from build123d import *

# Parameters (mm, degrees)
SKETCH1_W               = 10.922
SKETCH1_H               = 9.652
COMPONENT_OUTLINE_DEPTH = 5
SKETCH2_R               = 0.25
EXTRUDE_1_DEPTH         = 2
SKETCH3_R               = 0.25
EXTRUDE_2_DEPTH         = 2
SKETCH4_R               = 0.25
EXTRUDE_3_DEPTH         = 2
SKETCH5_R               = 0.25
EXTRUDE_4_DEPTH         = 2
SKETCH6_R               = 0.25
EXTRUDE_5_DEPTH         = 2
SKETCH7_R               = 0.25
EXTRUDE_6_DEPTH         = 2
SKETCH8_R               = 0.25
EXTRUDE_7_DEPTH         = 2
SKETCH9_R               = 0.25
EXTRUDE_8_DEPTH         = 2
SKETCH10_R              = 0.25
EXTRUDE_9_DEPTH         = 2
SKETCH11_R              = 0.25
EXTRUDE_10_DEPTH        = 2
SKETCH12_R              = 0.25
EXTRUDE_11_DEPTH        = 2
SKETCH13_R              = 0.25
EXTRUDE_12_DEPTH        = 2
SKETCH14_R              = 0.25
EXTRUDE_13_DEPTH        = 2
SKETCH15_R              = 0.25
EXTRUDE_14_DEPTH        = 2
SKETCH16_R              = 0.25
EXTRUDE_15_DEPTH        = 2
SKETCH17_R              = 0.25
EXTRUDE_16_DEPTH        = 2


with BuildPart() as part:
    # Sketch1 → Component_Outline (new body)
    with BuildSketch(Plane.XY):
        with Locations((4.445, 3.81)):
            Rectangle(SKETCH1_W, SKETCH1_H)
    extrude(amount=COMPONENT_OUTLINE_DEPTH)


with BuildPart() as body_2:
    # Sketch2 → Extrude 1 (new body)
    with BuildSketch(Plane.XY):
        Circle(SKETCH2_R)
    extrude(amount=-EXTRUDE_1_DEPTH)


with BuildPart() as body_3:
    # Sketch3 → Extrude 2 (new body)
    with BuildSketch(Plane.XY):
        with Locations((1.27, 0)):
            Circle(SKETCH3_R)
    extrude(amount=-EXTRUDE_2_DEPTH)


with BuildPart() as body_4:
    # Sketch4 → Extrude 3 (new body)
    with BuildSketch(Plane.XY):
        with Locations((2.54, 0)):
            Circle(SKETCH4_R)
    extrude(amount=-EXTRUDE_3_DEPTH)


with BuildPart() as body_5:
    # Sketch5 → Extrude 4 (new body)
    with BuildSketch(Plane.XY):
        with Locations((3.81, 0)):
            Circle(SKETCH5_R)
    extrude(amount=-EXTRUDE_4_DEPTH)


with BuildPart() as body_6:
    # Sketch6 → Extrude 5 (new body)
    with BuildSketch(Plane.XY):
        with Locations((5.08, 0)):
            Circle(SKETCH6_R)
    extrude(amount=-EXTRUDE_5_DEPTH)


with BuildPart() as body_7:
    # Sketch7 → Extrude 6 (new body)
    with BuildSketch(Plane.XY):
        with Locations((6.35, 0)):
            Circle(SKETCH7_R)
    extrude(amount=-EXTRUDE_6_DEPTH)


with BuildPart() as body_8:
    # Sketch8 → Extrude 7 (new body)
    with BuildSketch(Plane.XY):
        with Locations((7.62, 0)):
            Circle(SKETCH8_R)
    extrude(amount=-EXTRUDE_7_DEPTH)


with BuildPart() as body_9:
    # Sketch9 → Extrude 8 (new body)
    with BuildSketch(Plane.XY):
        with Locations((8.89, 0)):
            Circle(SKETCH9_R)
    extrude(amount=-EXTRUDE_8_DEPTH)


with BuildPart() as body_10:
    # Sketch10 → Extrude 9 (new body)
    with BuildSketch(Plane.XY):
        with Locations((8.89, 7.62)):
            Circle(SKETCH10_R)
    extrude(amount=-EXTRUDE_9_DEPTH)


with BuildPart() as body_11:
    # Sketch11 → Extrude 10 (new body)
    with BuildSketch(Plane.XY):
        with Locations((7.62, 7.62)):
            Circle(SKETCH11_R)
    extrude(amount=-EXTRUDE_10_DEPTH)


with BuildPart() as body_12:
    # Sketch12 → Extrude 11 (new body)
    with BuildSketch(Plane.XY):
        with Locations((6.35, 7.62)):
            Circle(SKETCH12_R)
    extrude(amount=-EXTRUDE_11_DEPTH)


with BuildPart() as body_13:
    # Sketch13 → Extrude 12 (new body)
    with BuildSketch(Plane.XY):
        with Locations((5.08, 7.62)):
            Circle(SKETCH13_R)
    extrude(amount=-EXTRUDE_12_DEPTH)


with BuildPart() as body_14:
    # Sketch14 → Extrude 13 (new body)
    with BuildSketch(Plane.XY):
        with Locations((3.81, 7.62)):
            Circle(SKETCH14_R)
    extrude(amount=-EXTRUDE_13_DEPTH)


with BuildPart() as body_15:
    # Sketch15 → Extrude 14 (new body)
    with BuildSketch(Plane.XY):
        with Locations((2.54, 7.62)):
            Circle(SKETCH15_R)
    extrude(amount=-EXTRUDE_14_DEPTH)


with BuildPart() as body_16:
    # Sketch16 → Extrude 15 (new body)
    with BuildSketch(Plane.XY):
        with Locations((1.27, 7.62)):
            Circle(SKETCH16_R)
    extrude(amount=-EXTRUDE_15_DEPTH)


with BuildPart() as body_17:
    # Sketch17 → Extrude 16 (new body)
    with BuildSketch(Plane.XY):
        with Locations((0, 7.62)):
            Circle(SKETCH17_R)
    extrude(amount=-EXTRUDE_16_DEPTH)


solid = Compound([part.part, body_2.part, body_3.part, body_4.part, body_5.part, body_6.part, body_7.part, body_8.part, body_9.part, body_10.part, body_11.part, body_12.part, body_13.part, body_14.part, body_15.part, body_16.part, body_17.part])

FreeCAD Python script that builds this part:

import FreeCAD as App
import Part
import Sketcher
from FreeCAD import Vector


def add_polygon(sketch, points):
    """Adds a closed chain of lines whose ends are joined by coincident constraints."""
    first, n = sketch.GeometryCount, len(points)
    for a, b in zip(points, points[1:] + points[:1]):
        sketch.addGeometry(Part.LineSegment(App.Vector(*a, 0), App.Vector(*b, 0)), False)
    for i in range(n):
        sketch.addConstraint(Sketcher.Constraint("Coincident", first + i, 2, first + (i + 1) % n, 1))

doc = App.newDocument("Part")
params = doc.addObject("Spreadsheet::Sheet", "Params")
for row, (alias, value) in enumerate([
    ("pad1_length", "5 mm"),
    ("sketch2_diameter", "0.5 mm"),
    ("pad2_length", "2 mm"),
    ("sketch3_diameter", "0.5 mm"),
    ("pad3_length", "2 mm"),
    ("sketch4_diameter", "0.5 mm"),
    ("pad4_length", "2 mm"),
    ("sketch5_diameter", "0.5 mm"),
    ("pad5_length", "2 mm"),
    ("sketch6_diameter", "0.5 mm"),
    ("pad6_length", "2 mm"),
    ("sketch7_diameter", "0.5 mm"),
    ("pad7_length", "2 mm"),
    ("sketch8_diameter", "0.5 mm"),
    ("pad8_length", "2 mm"),
    ("sketch9_diameter", "0.5 mm"),
    ("pad9_length", "2 mm"),
    ("sketch10_diameter", "0.5 mm"),
    ("pad10_length", "2 mm"),
    ("sketch11_diameter", "0.5 mm"),
    ("pad11_length", "2 mm"),
    ("sketch12_diameter", "0.5 mm"),
    ("pad12_length", "2 mm"),
    ("sketch13_diameter", "0.5 mm"),
    ("pad13_length", "2 mm"),
    ("sketch14_diameter", "0.5 mm"),
    ("pad14_length", "2 mm"),
    ("sketch15_diameter", "0.5 mm"),
    ("pad15_length", "2 mm"),
    ("sketch16_diameter", "0.5 mm"),
    ("pad16_length", "2 mm"),
    ("sketch17_diameter", "0.5 mm"),
    ("pad17_length", "2 mm"),
], start=1):
    params.set(f"A{row}", alias)
    params.set(f"B{row}", "=" + value)
    params.setAlias(f"B{row}", alias)

body = doc.addObject("PartDesign::Body", "Body")

sketch1 = body.newObject("Sketcher::SketchObject", "Sketch")
sketch1.AttachmentSupport = (doc.getObject("XY_Plane"), [""])
sketch1.MapMode = "FlatFace"
add_polygon(sketch1, [(-1, 9), (-1, -1), (10, -1), (10, 9)])
sketch1.addConstraint([
    Sketcher.Constraint("Vertical", 0),
    Sketcher.Constraint("Horizontal", 1),
    Sketcher.Constraint("Vertical", 2),
    Sketcher.Constraint("Horizontal", 3),
    Sketcher.Constraint("DistanceX", 1, 1, 1, 2, 10.922),
    Sketcher.Constraint("DistanceY", 0, 2, 0, 1, 9.652),
    Sketcher.Constraint("DistanceX", 0, 2, -1, 1, 1.016),
    Sketcher.Constraint("DistanceY", 0, 2, -1, 1, 1.016),
])
pad1 = body.newObject("PartDesign::Pad", "Pad")
pad1.Profile = sketch1
pad1.setExpression("Length", "Params.pad1_length")
body2 = doc.addObject("PartDesign::Body", "Body001")

sketch2 = body2.newObject("Sketcher::SketchObject", "Sketch001")
sketch2.AttachmentSupport = (doc.getObject("XY_Plane001"), [""])
sketch2.MapMode = "FlatFace"
sketch2.addGeometry(Part.Circle(Vector(0, 0, 0), Vector(0, 0, 1), 0.25), False)
sketch2.addConstraint([
    Sketcher.Constraint("Coincident", 0, 3, -1, 1),
    Sketcher.Constraint("Diameter", 0, 0.5),
])
sketch2.setExpression("Constraints[1]", "Params.sketch2_diameter")
pad2 = body2.newObject("PartDesign::Pad", "Pad001")
pad2.Profile = sketch2
pad2.setExpression("Length", "Params.pad2_length")
pad2.Reversed = True
body3 = doc.addObject("PartDesign::Body", "Body002")

sketch3 = body3.newObject("Sketcher::SketchObject", "Sketch002")
sketch3.AttachmentSupport = (doc.getObject("XY_Plane002"), [""])
sketch3.MapMode = "FlatFace"
sketch3.addGeometry(Part.Circle(Vector(1.27, 0, 0), Vector(0, 0, 1), 0.25), False)
sketch3.addConstraint([
    Sketcher.Constraint("PointOnObject", 0, 3, -1),
    Sketcher.Constraint("Diameter", 0, 0.5),
    Sketcher.Constraint("DistanceX", -1, 1, 0, 3, 1.27),
])
sketch3.setExpression("Constraints[1]", "Params.sketch3_diameter")
pad3 = body3.newObject("PartDesign::Pad", "Pad002")
pad3.Profile = sketch3
pad3.setExpression("Length", "Params.pad3_length")
pad3.Reversed = True
body4 = doc.addObject("PartDesign::Body", "Body003")

sketch4 = body4.newObject("Sketcher::SketchObject", "Sketch003")
sketch4.AttachmentSupport = (doc.getObject("XY_Plane003"), [""])
sketch4.MapMode = "FlatFace"
sketch4.addGeometry(Part.Circle(Vector(2.54, 0, 0), Vector(0, 0, 1), 0.25), False)
sketch4.addConstraint([
    Sketcher.Constraint("PointOnObject", 0, 3, -1),
    Sketcher.Constraint("Diameter", 0, 0.5),
    Sketcher.Constraint("DistanceX", -1, 1, 0, 3, 2.54),
])
sketch4.setExpression("Constraints[1]", "Params.sketch4_diameter")
pad4 = body4.newObject("PartDesign::Pad", "Pad003")
pad4.Profile = sketch4
pad4.setExpression("Length", "Params.pad4_length")
pad4.Reversed = True
body5 = doc.addObject("PartDesign::Body", "Body004")

sketch5 = body5.newObject("Sketcher::SketchObject", "Sketch004")
sketch5.AttachmentSupport = (doc.getObject("XY_Plane004"), [""])
sketch5.MapMode = "FlatFace"
sketch5.addGeometry(Part.Circle(Vector(3.81, 0, 0), Vector(0, 0, 1), 0.25), False)
sketch5.addConstraint([
    Sketcher.Constraint("PointOnObject", 0, 3, -1),
    Sketcher.Constraint("Diameter", 0, 0.5),
    Sketcher.Constraint("DistanceX", -1, 1, 0, 3, 3.81),
])
sketch5.setExpression("Constraints[1]", "Params.sketch5_diameter")
pad5 = body5.newObject("PartDesign::Pad", "Pad004")
pad5.Profile = sketch5
pad5.setExpression("Length", "Params.pad5_length")
pad5.Reversed = True
body6 = doc.addObject("PartDesign::Body", "Body005")

sketch6 = body6.newObject("Sketcher::SketchObject", "Sketch005")
sketch6.AttachmentSupport = (doc.getObject("XY_Plane005"), [""])
sketch6.MapMode = "FlatFace"
sketch6.addGeometry(Part.Circle(Vector(5.08, 0, 0), Vector(0, 0, 1), 0.25), False)
sketch6.addConstraint([
    Sketcher.Constraint("PointOnObject", 0, 3, -1),
    Sketcher.Constraint("Diameter", 0, 0.5),
    Sketcher.Constraint("DistanceX", -1, 1, 0, 3, 5.08),
])
sketch6.setExpression("Constraints[1]", "Params.sketch6_diameter")
pad6 = body6.newObject("PartDesign::Pad", "Pad005")
pad6.Profile = sketch6
pad6.setExpression("Length", "Params.pad6_length")
pad6.Reversed = True
body7 = doc.addObject("PartDesign::Body", "Body006")

sketch7 = body7.newObject("Sketcher::SketchObject", "Sketch006")
sketch7.AttachmentSupport = (doc.getObject("XY_Plane006"), [""])
sketch7.MapMode = "FlatFace"
sketch7.addGeometry(Part.Circle(Vector(6.35, 0, 0), Vector(0, 0, 1), 0.25), False)
sketch7.addConstraint([
    Sketcher.Constraint("PointOnObject", 0, 3, -1),
    Sketcher.Constraint("Diameter", 0, 0.5),
    Sketcher.Constraint("DistanceX", -1, 1, 0, 3, 6.35),
])
sketch7.setExpression("Constraints[1]", "Params.sketch7_diameter")
pad7 = body7.newObject("PartDesign::Pad", "Pad006")
pad7.Profile = sketch7
pad7.setExpression("Length", "Params.pad7_length")
pad7.Reversed = True
body8 = doc.addObject("PartDesign::Body", "Body007")

sketch8 = body8.newObject("Sketcher::SketchObject", "Sketch007")
sketch8.AttachmentSupport = (doc.getObject("XY_Plane007"), [""])
sketch8.MapMode = "FlatFace"
sketch8.addGeometry(Part.Circle(Vector(7.62, 0, 0), Vector(0, 0, 1), 0.25), False)
sketch8.addConstraint([
    Sketcher.Constraint("PointOnObject", 0, 3, -1),
    Sketcher.Constraint("Diameter", 0, 0.5),
    Sketcher.Constraint("DistanceX", -1, 1, 0, 3, 7.62),
])
sketch8.setExpression("Constraints[1]", "Params.sketch8_diameter")
pad8 = body8.newObject("PartDesign::Pad", "Pad007")
pad8.Profile = sketch8
pad8.setExpression("Length", "Params.pad8_length")
pad8.Reversed = True
body9 = doc.addObject("PartDesign::Body", "Body008")

sketch9 = body9.newObject("Sketcher::SketchObject", "Sketch008")
sketch9.AttachmentSupport = (doc.getObject("XY_Plane008"), [""])
sketch9.MapMode = "FlatFace"
sketch9.addGeometry(Part.Circle(Vector(8.89, 0, 0), Vector(0, 0, 1), 0.25), False)
sketch9.addConstraint([
    Sketcher.Constraint("PointOnObject", 0, 3, -1),
    Sketcher.Constraint("Diameter", 0, 0.5),
    Sketcher.Constraint("DistanceX", -1, 1, 0, 3, 8.89),
])
sketch9.setExpression("Constraints[1]", "Params.sketch9_diameter")
pad9 = body9.newObject("PartDesign::Pad", "Pad008")
pad9.Profile = sketch9
pad9.setExpression("Length", "Params.pad9_length")
pad9.Reversed = True
body10 = doc.addObject("PartDesign::Body", "Body009")

sketch10 = body10.newObject("Sketcher::SketchObject", "Sketch009")
sketch10.AttachmentSupport = (doc.getObject("XY_Plane009"), [""])
sketch10.MapMode = "FlatFace"
sketch10.addGeometry(Part.Circle(Vector(8.89, 7.62, 0), Vector(0, 0, 1), 0.25), False)
sketch10.addConstraint([
    Sketcher.Constraint("Diameter", 0, 0.5),
    Sketcher.Constraint("DistanceX", -1, 1, 0, 3, 8.89),
    Sketcher.Constraint("DistanceY", -1, 1, 0, 3, 7.62),
])
sketch10.setExpression("Constraints[0]", "Params.sketch10_diameter")
pad10 = body10.newObject("PartDesign::Pad", "Pad009")
pad10.Profile = sketch10
pad10.setExpression("Length", "Params.pad10_length")
pad10.Reversed = True
body11 = doc.addObject("PartDesign::Body", "Body010")

sketch11 = body11.newObject("Sketcher::SketchObject", "Sketch010")
sketch11.AttachmentSupport = (doc.getObject("XY_Plane010"), [""])
sketch11.MapMode = "FlatFace"
sketch11.addGeometry(Part.Circle(Vector(7.62, 7.62, 0), Vector(0, 0, 1), 0.25), False)
sketch11.addConstraint([
    Sketcher.Constraint("Diameter", 0, 0.5),
    Sketcher.Constraint("DistanceX", -1, 1, 0, 3, 7.62),
    Sketcher.Constraint("DistanceY", -1, 1, 0, 3, 7.62),
])
sketch11.setExpression("Constraints[0]", "Params.sketch11_diameter")
pad11 = body11.newObject("PartDesign::Pad", "Pad010")
pad11.Profile = sketch11
pad11.setExpression("Length", "Params.pad11_length")
pad11.Reversed = True
body12 = doc.addObject("PartDesign::Body", "Body011")

sketch12 = body12.newObject("Sketcher::SketchObject", "Sketch011")
sketch12.AttachmentSupport = (doc.getObject("XY_Plane011"), [""])
sketch12.MapMode = "FlatFace"
sketch12.addGeometry(Part.Circle(Vector(6.35, 7.62, 0), Vector(0, 0, 1), 0.25), False)
sketch12.addConstraint([
    Sketcher.Constraint("Diameter", 0, 0.5),
    Sketcher.Constraint("DistanceX", -1, 1, 0, 3, 6.35),
    Sketcher.Constraint("DistanceY", -1, 1, 0, 3, 7.62),
])
sketch12.setExpression("Constraints[0]", "Params.sketch12_diameter")
pad12 = body12.newObject("PartDesign::Pad", "Pad011")
pad12.Profile = sketch12
pad12.setExpression("Length", "Params.pad12_length")
pad12.Reversed = True
body13 = doc.addObject("PartDesign::Body", "Body012")

sketch13 = body13.newObject("Sketcher::SketchObject", "Sketch012")
sketch13.AttachmentSupport = (doc.getObject("XY_Plane012"), [""])
sketch13.MapMode = "FlatFace"
sketch13.addGeometry(Part.Circle(Vector(5.08, 7.62, 0), Vector(0, 0, 1), 0.25), False)
sketch13.addConstraint([
    Sketcher.Constraint("Diameter", 0, 0.5),
    Sketcher.Constraint("DistanceX", -1, 1, 0, 3, 5.08),
    Sketcher.Constraint("DistanceY", -1, 1, 0, 3, 7.62),
])
sketch13.setExpression("Constraints[0]", "Params.sketch13_diameter")
pad13 = body13.newObject("PartDesign::Pad", "Pad012")
pad13.Profile = sketch13
pad13.setExpression("Length", "Params.pad13_length")
pad13.Reversed = True
body14 = doc.addObject("PartDesign::Body", "Body013")

sketch14 = body14.newObject("Sketcher::SketchObject", "Sketch013")
sketch14.AttachmentSupport = (doc.getObject("XY_Plane013"), [""])
sketch14.MapMode = "FlatFace"
sketch14.addGeometry(Part.Circle(Vector(3.81, 7.62, 0), Vector(0, 0, 1), 0.25), False)
sketch14.addConstraint([
    Sketcher.Constraint("Diameter", 0, 0.5),
    Sketcher.Constraint("DistanceX", -1, 1, 0, 3, 3.81),
    Sketcher.Constraint("DistanceY", -1, 1, 0, 3, 7.62),
])
sketch14.setExpression("Constraints[0]", "Params.sketch14_diameter")
pad14 = body14.newObject("PartDesign::Pad", "Pad013")
pad14.Profile = sketch14
pad14.setExpression("Length", "Params.pad14_length")
pad14.Reversed = True
body15 = doc.addObject("PartDesign::Body", "Body014")

sketch15 = body15.newObject("Sketcher::SketchObject", "Sketch014")
sketch15.AttachmentSupport = (doc.getObject("XY_Plane014"), [""])
sketch15.MapMode = "FlatFace"
sketch15.addGeometry(Part.Circle(Vector(2.54, 7.62, 0), Vector(0, 0, 1), 0.25), False)
sketch15.addConstraint([
    Sketcher.Constraint("Diameter", 0, 0.5),
    Sketcher.Constraint("DistanceX", -1, 1, 0, 3, 2.54),
    Sketcher.Constraint("DistanceY", -1, 1, 0, 3, 7.62),
])
sketch15.setExpression("Constraints[0]", "Params.sketch15_diameter")
pad15 = body15.newObject("PartDesign::Pad", "Pad014")
pad15.Profile = sketch15
pad15.setExpression("Length", "Params.pad15_length")
pad15.Reversed = True
body16 = doc.addObject("PartDesign::Body", "Body015")

sketch16 = body16.newObject("Sketcher::SketchObject", "Sketch015")
sketch16.AttachmentSupport = (doc.getObject("XY_Plane015"), [""])
sketch16.MapMode = "FlatFace"
sketch16.addGeometry(Part.Circle(Vector(1.27, 7.62, 0), Vector(0, 0, 1), 0.25), False)
sketch16.addConstraint([
    Sketcher.Constraint("Diameter", 0, 0.5),
    Sketcher.Constraint("DistanceX", -1, 1, 0, 3, 1.27),
    Sketcher.Constraint("DistanceY", -1, 1, 0, 3, 7.62),
])
sketch16.setExpression("Constraints[0]", "Params.sketch16_diameter")
pad16 = body16.newObject("PartDesign::Pad", "Pad015")
pad16.Profile = sketch16
pad16.setExpression("Length", "Params.pad16_length")
pad16.Reversed = True
body17 = doc.addObject("PartDesign::Body", "Body016")

sketch17 = body17.newObject("Sketcher::SketchObject", "Sketch016")
sketch17.AttachmentSupport = (doc.getObject("XY_Plane016"), [""])
sketch17.MapMode = "FlatFace"
sketch17.addGeometry(Part.Circle(Vector(0, 7.62, 0), Vector(0, 0, 1), 0.25), False)
sketch17.addConstraint([
    Sketcher.Constraint("PointOnObject", 0, 3, -2),
    Sketcher.Constraint("Diameter", 0, 0.5),
    Sketcher.Constraint("DistanceY", -1, 1, 0, 3, 7.62),
])
sketch17.setExpression("Constraints[1]", "Params.sketch17_diameter")
pad17 = body17.newObject("PartDesign::Pad", "Pad016")
pad17.Profile = sketch17
pad17.setExpression("Length", "Params.pad17_length")
pad17.Reversed = True

doc.recompute()
